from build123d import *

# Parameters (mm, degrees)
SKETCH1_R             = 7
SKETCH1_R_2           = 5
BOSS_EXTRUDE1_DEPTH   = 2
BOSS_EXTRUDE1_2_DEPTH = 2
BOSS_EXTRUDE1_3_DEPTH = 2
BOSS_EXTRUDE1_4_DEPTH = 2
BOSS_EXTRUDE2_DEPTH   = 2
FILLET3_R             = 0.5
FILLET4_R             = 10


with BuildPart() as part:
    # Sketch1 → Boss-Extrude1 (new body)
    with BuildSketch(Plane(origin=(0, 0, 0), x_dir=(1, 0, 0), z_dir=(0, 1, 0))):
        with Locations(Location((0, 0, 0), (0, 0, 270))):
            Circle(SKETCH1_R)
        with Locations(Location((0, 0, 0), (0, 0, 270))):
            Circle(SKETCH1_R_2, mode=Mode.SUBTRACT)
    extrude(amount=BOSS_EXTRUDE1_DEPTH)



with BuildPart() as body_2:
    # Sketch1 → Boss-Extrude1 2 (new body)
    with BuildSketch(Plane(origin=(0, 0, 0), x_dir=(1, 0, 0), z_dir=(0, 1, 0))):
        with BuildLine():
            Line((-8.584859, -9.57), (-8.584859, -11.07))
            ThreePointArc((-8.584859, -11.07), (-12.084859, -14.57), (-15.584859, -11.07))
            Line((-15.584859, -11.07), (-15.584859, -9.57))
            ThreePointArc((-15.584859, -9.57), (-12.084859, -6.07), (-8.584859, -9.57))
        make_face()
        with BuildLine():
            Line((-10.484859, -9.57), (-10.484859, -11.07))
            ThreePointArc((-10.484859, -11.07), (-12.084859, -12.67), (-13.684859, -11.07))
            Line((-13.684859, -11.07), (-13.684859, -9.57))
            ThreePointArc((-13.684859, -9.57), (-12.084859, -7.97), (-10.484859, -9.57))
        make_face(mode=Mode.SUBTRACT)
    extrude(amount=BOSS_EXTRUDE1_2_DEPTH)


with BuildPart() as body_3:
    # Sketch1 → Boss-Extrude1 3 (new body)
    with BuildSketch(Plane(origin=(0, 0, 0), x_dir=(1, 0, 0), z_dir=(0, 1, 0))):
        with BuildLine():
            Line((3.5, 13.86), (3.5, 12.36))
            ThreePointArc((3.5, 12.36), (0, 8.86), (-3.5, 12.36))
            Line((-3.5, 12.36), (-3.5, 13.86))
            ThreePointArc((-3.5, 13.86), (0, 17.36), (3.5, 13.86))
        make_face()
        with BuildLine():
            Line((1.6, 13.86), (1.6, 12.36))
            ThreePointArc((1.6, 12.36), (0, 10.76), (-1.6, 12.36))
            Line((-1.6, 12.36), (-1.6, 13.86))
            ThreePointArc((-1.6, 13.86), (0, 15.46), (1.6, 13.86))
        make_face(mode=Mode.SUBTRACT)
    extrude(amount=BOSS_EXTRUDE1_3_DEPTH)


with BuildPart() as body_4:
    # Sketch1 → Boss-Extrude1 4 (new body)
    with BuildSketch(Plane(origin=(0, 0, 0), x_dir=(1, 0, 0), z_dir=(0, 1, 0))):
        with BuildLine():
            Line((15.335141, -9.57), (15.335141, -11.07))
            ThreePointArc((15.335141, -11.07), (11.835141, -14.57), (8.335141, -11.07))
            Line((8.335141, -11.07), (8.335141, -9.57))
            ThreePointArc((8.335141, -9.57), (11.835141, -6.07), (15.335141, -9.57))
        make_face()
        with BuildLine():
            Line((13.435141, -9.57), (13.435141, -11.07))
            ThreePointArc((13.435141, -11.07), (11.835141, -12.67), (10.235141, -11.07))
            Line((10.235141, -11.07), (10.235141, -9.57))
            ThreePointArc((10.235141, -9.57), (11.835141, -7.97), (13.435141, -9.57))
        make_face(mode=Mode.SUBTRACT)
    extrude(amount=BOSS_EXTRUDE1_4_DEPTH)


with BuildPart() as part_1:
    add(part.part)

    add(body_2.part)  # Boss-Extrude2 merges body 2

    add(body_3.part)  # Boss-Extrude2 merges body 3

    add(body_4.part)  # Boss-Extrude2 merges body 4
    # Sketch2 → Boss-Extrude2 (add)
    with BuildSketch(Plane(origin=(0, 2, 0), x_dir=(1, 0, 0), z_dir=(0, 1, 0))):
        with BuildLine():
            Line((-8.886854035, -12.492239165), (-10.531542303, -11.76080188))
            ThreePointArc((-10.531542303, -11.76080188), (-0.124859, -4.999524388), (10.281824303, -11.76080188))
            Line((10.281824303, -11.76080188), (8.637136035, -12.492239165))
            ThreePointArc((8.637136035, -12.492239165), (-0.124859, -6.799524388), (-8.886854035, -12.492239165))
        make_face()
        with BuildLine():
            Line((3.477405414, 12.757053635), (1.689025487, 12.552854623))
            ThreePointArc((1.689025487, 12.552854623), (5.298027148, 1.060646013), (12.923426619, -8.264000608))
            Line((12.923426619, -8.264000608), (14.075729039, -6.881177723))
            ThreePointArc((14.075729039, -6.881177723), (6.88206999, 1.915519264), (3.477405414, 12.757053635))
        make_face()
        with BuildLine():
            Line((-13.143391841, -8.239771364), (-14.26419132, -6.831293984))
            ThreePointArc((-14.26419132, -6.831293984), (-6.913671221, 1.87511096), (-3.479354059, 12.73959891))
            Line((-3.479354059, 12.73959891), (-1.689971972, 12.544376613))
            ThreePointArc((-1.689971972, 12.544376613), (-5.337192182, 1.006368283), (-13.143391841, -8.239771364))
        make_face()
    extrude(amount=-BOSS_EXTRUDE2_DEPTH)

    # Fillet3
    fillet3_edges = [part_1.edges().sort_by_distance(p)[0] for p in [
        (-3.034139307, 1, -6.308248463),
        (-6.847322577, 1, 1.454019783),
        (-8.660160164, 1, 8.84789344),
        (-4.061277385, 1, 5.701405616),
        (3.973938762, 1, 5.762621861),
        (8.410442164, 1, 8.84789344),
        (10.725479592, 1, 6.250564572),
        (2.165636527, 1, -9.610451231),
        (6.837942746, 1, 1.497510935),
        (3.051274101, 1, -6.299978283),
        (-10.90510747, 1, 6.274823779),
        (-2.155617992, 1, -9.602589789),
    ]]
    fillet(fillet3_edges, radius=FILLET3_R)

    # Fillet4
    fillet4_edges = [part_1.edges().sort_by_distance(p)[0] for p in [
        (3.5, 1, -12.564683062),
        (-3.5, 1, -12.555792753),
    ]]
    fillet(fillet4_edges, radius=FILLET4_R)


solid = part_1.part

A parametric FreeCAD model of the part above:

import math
import FreeCAD as App
import Part
import Sketcher
Q = App.Units.Quantity


def edges_at(feature, points):
    """Names of the edges that pass closest to the given points."""
    edges = feature.Shape.Edges
    near = lambda p: min(range(len(edges)), key=lambda i: edges[i].distToShape(Part.Vertex(*p))[0])
    return sorted({f"Edge{near(p) + 1}" for p in points})

doc = App.newDocument("Part")
params = doc.addObject("Spreadsheet::Sheet", "Params")
for row, (alias, value) in enumerate([
    ("sketch1_diameter", "14 mm"),
    ("sketch1_diameter2", "10 mm"),
    ("pad1_length", "2 mm"),
    ("sketch2_radius", "3.5 mm"),
    ("sketch2_radius2", "1.6 mm"),
    ("sketch2_height", "1.5 mm"),
    ("pad2_length", "2 mm"),
    ("sketch3_radius", "3.5 mm"),
    ("sketch3_radius2", "1.6 mm"),
    ("sketch3_height", "1.5 mm"),
    ("pad3_length", "2 mm"),
    ("sketch4_radius", "3.5 mm"),
    ("sketch4_radius2", "1.6 mm"),
    ("sketch4_height", "1.5 mm"),
    ("pad4_length", "2 mm"),
    ("sketch5_length", "1.8 mm"),
    ("pad5_length", "2 mm"),
    ("fillet_radius", "0.5 mm"),
    ("fillet2_radius", "10 mm"),
], start=1):
    params.set(f"A{row}", alias)
    params.set(f"B{row}", "=" + value)
    params.setAlias(f"B{row}", alias)

body = doc.addObject("PartDesign::Body", "Body")

sketch1 = body.newObject("Sketcher::SketchObject", "Sketch")
sketch1.AttachmentSupport = (doc.getObject("XZ_Plane"), [""])
sketch1.MapMode = "FlatFace"
sketch1.addGeometry([
    Part.Circle(App.Vector(0, 0, 0), App.Vector(0, 0, 1), 7),
    Part.Circle(App.Vector(0, 0, 0), App.Vector(0, 0, 1), 5),
], False)
sketch1.addConstraint([
    Sketcher.Constraint("Coincident", 0, 3, -1, 1),
    Sketcher.Constraint("Coincident", 1, 3, -1, 1),
    Sketcher.Constraint("Diameter", 0, Q("14 mm")),
    Sketcher.Constraint("Diameter", 1, Q("10 mm")),
])
sketch1.setExpression("Constraints[2]", "Params.sketch1_diameter")
sketch1.setExpression("Constraints[3]", "Params.sketch1_diameter2")
pad1 = body.newObject("PartDesign::Pad", "Pad")
pad1.Profile = sketch1
pad1.setExpression("Length", "Params.pad1_length")
pad1.Reversed = True
body2 = doc.addObject("PartDesign::Body", "Body001")

sketch2 = body2.newObject("Sketcher::SketchObject", "Sketch001")
sketch2.AttachmentSupport = (doc.getObject("XZ_Plane001"), [""])
sketch2.MapMode = "FlatFace"
sketch2.addGeometry([
    Part.LineSegment(App.Vector(-8.6, 11.1, 0), App.Vector(-8.6, 9.6, 0)),
    Part.ArcOfCircle(Part.Circle(App.Vector(-12.1, 9.6, 0), App.Vector(0, 0, 1), 3.5), math.radians(180), math.radians(360)),
    Part.LineSegment(App.Vector(-15.6, 9.6, 0), App.Vector(-15.6, 11.1, 0)),
    Part.ArcOfCircle(Part.Circle(App.Vector(-12.1, 11.1, 0), App.Vector(0, 0, 1), 3.5), math.radians(0), math.radians(180)),
    Part.LineSegment(App.Vector(-10.5, 9.6, 0), App.Vector(-10.5, 11.1, 0)),
    Part.ArcOfCircle(Part.Circle(App.Vector(-12.1, 11.1, 0), App.Vector(0, 0, 1), 1.6), math.radians(0), math.radians(180)),
    Part.LineSegment(App.Vector(-13.7, 11.1, 0), App.Vector(-13.7, 9.6, 0)),
    Part.ArcOfCircle(Part.Circle(App.Vector(-12.1, 9.6, 0), App.Vector(0, 0, 1), 1.6), math.radians(180), math.radians(360)),
], False)
sketch2.addConstraint([
    Sketcher.Constraint("Tangent", 0, 2, 1, 2),
    Sketcher.Constraint("Tangent", 1, 1, 2, 1),
    Sketcher.Constraint("Tangent", 2, 2, 3, 2),
    Sketcher.Constraint("Tangent", 3, 1, 0, 1),
    Sketcher.Constraint("Tangent", 4, 2, 5, 1),
    Sketcher.Constraint("Tangent", 5, 2, 6, 1),
    Sketcher.Constraint("Tangent", 6, 2, 7, 1),
    Sketcher.Constraint("Tangent", 7, 2, 4, 1),
    Sketcher.Constraint("Vertical", 0),
    Sketcher.Constraint("Vertical", 2),
    Sketcher.Constraint("Vertical", 4),
    Sketcher.Constraint("Vertical", 6),
    Sketcher.Constraint("Coincident", 5, 3, 3, 3),
    Sketcher.Constraint("Horizontal", 7, 3, 0, 2),
    Sketcher.Constraint("Radius", 1, Q("3.5 mm")),
    Sketcher.Constraint("Radius", 5, Q("1.6 mm")),
    Sketcher.Constraint("DistanceY", 0, 2, 0, 1, Q("1.5 mm")),
    Sketcher.Constraint("DistanceY", -1, 1, 1, 3, Q("9.57 mm")),
    Sketcher.Constraint("DistanceX", 1, 3, -1, 1, Q("12.084859 mm")),
])
sketch2.setExpression("Constraints[14]", "Params.sketch2_radius")
sketch2.setExpression("Constraints[15]", "Params.sketch2_radius2")
sketch2.setExpression("Constraints[16]", "Params.sketch2_height")
pad2 = body2.newObject("PartDesign::Pad", "Pad001")
pad2.Profile = sketch2
pad2.setExpression("Length", "Params.pad2_length")
pad2.Reversed = True
body3 = doc.addObject("PartDesign::Body", "Body002")

sketch3 = body3.newObject("Sketcher::SketchObject", "Sketch002")
sketch3.AttachmentSupport = (doc.getObject("XZ_Plane002"), [""])
sketch3.MapMode = "FlatFace"
sketch3.addGeometry([
    Part.LineSegment(App.Vector(3.5, -12.4, 0), App.Vector(3.5, -13.9, 0)),
    Part.ArcOfCircle(Part.Circle(App.Vector(0, -13.9, 0), App.Vector(0, 0, 1), 3.5), math.radians(180), math.radians(360)),
    Part.LineSegment(App.Vector(-3.5, -13.9, 0), App.Vector(-3.5, -12.4, 0)),
    Part.ArcOfCircle(Part.Circle(App.Vector(0, -12.4, 0), App.Vector(0, 0, 1), 3.5), math.radians(0), math.radians(180)),
    Part.LineSegment(App.Vector(1.6, -13.9, 0), App.Vector(1.6, -12.4, 0)),
    Part.ArcOfCircle(Part.Circle(App.Vector(0, -12.4, 0), App.Vector(0, 0, 1), 1.6), math.radians(0), math.radians(180)),
    Part.LineSegment(App.Vector(-1.6, -12.4, 0), App.Vector(-1.6, -13.9, 0)),
    Part.ArcOfCircle(Part.Circle(App.Vector(0, -13.9, 0), App.Vector(0, 0, 1), 1.6), math.radians(180), math.radians(360)),
], False)
sketch3.addConstraint([
    Sketcher.Constraint("Tangent", 0, 2, 1, 2),
    Sketcher.Constraint("Tangent", 1, 1, 2, 1),
    Sketcher.Constraint("Tangent", 2, 2, 3, 2),
    Sketcher.Constraint("Tangent", 3, 1, 0, 1),
    Sketcher.Constraint("Tangent", 4, 2, 5, 1),
    Sketcher.Constraint("Tangent", 5, 2, 6, 1),
    Sketcher.Constraint("Tangent", 6, 2, 7, 1),
    Sketcher.Constraint("Tangent", 7, 2, 4, 1),
    Sketcher.Constraint("Vertical", 0),
    Sketcher.Constraint("Vertical", 2),
    Sketcher.Constraint("Vertical", 4),
    Sketcher.Constraint("Vertical", 6),
    Sketcher.Constraint("Coincident", 5, 3, 3, 3),
    Sketcher.Constraint("PointOnObject", 1, 3, -2),
    Sketcher.Constraint("Horizontal", 7, 3, 0, 2),
    Sketcher.Constraint("Radius", 1, Q("3.5 mm")),
    Sketcher.Constraint("Radius", 5, Q("1.6 mm")),
    Sketcher.Constraint("DistanceY", 0, 2, 0, 1, Q("1.5 mm")),
    Sketcher.Constraint("DistanceY", 1, 3, -1, 1, Q("13.86 mm")),
])
sketch3.setExpression("Constraints[15]", "Params.sketch3_radius")
sketch3.setExpression("Constraints[16]", "Params.sketch3_radius2")
sketch3.setExpression("Constraints[17]", "Params.sketch3_height")
pad3 = body3.newObject("PartDesign::Pad", "Pad002")
pad3.Profile = sketch3
pad3.setExpression("Length", "Params.pad3_length")
pad3.Reversed = True
body4 = doc.addObject("PartDesign::Body", "Body003")

sketch4 = body4.newObject("Sketcher::SketchObject", "Sketch003")
sketch4.AttachmentSupport = (doc.getObject("XZ_Plane003"), [""])
sketch4.MapMode = "FlatFace"
sketch4.addGeometry([
    Part.LineSegment(App.Vector(15.3, 11.1, 0), App.Vector(15.3, 9.6, 0)),
    Part.ArcOfCircle(Part.Circle(App.Vector(11.8, 9.6, 0), App.Vector(0, 0, 1), 3.5), math.radians(180), math.radians(360)),
    Part.LineSegment(App.Vector(8.3, 9.6, 0), App.Vector(8.3, 11.1, 0)),
    Part.ArcOfCircle(Part.Circle(App.Vector(11.8, 11.1, 0), App.Vector(0, 0, 1), 3.5), math.radians(0), math.radians(180)),
    Part.LineSegment(App.Vector(13.4, 9.6, 0), App.Vector(13.4, 11.1, 0)),
    Part.ArcOfCircle(Part.Circle(App.Vector(11.8, 11.1, 0), App.Vector(0, 0, 1), 1.6), math.radians(0), math.radians(180)),
    Part.LineSegment(App.Vector(10.2, 11.1, 0), App.Vector(10.2, 9.6, 0)),
    Part.ArcOfCircle(Part.Circle(App.Vector(11.8, 9.6, 0), App.Vector(0, 0, 1), 1.6), math.radians(180), math.radians(360)),
], False)
sketch4.addConstraint([
    Sketcher.Constraint("Tangent", 0, 2, 1, 2),
    Sketcher.Constraint("Tangent", 1, 1, 2, 1),
    Sketcher.Constraint("Tangent", 2, 2, 3, 2),
    Sketcher.Constraint("Tangent", 3, 1, 0, 1),
    Sketcher.Constraint("Tangent", 4, 2, 5, 1),
    Sketcher.Constraint("Tangent", 5, 2, 6, 1),
    Sketcher.Constraint("Tangent", 6, 2, 7, 1),
    Sketcher.Constraint("Tangent", 7, 2, 4, 1),
    Sketcher.Constraint("Vertical", 0),
    Sketcher.Constraint("Vertical", 2),
    Sketcher.Constraint("Vertical", 4),
    Sketcher.Constraint("Vertical", 6),
    Sketcher.Constraint("Coincident", 5, 3, 3, 3),
    Sketcher.Constraint("Horizontal", 7, 3, 0, 2),
    Sketcher.Constraint("Radius", 1, Q("3.5 mm")),
    Sketcher.Constraint("Radius", 5, Q("1.6 mm")),
    Sketcher.Constraint("DistanceY", 0, 2, 0, 1, Q("1.5 mm")),
    Sketcher.Constraint("DistanceY", -1, 1, 1, 3, Q("9.57 mm")),
    Sketcher.Constraint("DistanceX", -1, 1, 1, 3, Q("11.835141 mm")),
])
sketch4.setExpression("Constraints[14]", "Params.sketch4_radius")
sketch4.setExpression("Constraints[15]", "Params.sketch4_radius2")
sketch4.setExpression("Constraints[16]", "Params.sketch4_height")
pad4 = body4.newObject("PartDesign::Pad", "Pad003")
pad4.Profile = sketch4
pad4.setExpression("Length", "Params.pad4_length")
pad4.Reversed = True
body.AllowCompound = True
doc.recompute()

boolean = body.newObject("PartDesign::Boolean", "Boolean")
boolean.Type = "Fuse"
boolean.addObjects([body2])
doc.recompute()

boolean2 = body.newObject("PartDesign::Boolean", "Boolean001")
boolean2.Type = "Fuse"
boolean2.addObjects([body3])
doc.recompute()

boolean3 = body.newObject("PartDesign::Boolean", "Boolean002")
boolean3.Type = "Fuse"
boolean3.addObjects([body4])

sketch5 = body.newObject("Sketcher::SketchObject", "Sketch004")
sketch5.AttachmentSupport = (doc.getObject("XZ_Plane"), [""])
sketch5.MapMode = "FlatFace"
sketch5.AttachmentOffset = App.Placement(App.Vector(0, 0, -2), App.Rotation())
sketch5.addGeometry([
    Part.LineSegment(App.Vector(-10.5, 11.8, 0), App.Vector(-8.9, 12.5, 0)),
    Part.ArcOfCircle(Part.Circle(App.Vector(-0.1, 16.4, 0), App.Vector(0, 0, 1), 9.6), math.radians(-156), math.radians(-24)),
    Part.LineSegment(App.Vector(8.6, 12.5, 0), App.Vector(10.3, 11.8, 0)),
    Part.ArcOfCircle(Part.Circle(App.Vector(-0.1, 16.4, 0), App.Vector(0, 0, 1), 11.4), math.radians(-156), math.radians(-24)),
    Part.LineSegment(App.Vector(3.5, -12.8, 0), App.Vector(1.7, -12.6, 0)),
    Part.ArcOfCircle(Part.Circle(App.Vector(33.3, -16.2, 0), App.Vector(0, 0, 1), 31.8), math.radians(130), math.radians(173)),
    Part.LineSegment(App.Vector(12.9, 8.3, 0), App.Vector(14.1, 6.9, 0)),
    Part.ArcOfCircle(Part.Circle(App.Vector(33.3, -16.2, 0), App.Vector(0, 0, 1), 30), math.radians(130), math.radians(173)),
    Part.LineSegment(App.Vector(-14.3, 6.8, 0), App.Vector(-13.1, 8.2, 0)),
    Part.ArcOfCircle(Part.Circle(App.Vector(-32.3, -15.9, 0), App.Vector(0, 0, 1), 30.8), math.radians(6), math.radians(51)),
    Part.LineSegment(App.Vector(-1.7, -12.5, 0), App.Vector(-3.5, -12.7, 0)),
    Part.ArcOfCircle(Part.Circle(App.Vector(-32.3, -15.9, 0), App.Vector(0, 0, 1), 29), math.radians(6), math.radians(51)),
], False)
sketch5.addConstraint([
    Sketcher.Constraint("Coincident", 0, 2, 1, 1),
    Sketcher.Constraint("Coincident", 1, 2, 2, 1),
    Sketcher.Constraint("Coincident", 2, 2, 3, 2),
    Sketcher.Constraint("Coincident", 3, 1, 0, 1),
    Sketcher.Constraint("Coincident", 4, 2, 5, 2),
    Sketcher.Constraint("Coincident", 5, 1, 6, 1),
    Sketcher.Constraint("Coincident", 6, 2, 7, 1),
    Sketcher.Constraint("Coincident", 7, 2, 4, 1),
    Sketcher.Constraint("Coincident", 8, 2, 9, 2),
    Sketcher.Constraint("Coincident", 9, 1, 10, 1),
    Sketcher.Constraint("Coincident", 10, 2, 11, 1),
    Sketcher.Constraint("Coincident", 11, 2, 8, 1),
    Sketcher.Constraint("Coincident", 3, 3, 1, 3),
    Sketcher.Constraint("Coincident", 7, 3, 5, 3),
    Sketcher.Constraint("Coincident", 11, 3, 9, 3),
    Sketcher.Constraint("Horizontal", 0, 2, 1, 2),
    Sketcher.Constraint("Horizontal", 2, 2, 3, 1),
    Sketcher.Constraint("Equal", 2, 4),
    Sketcher.Constraint("Equal", 6, 8),
    Sketcher.Constraint("Distance", 0, Q("1.8 mm")),
    Sketcher.Constraint("Radius", 5, Q("31.791601 mm")),
    Sketcher.Constraint("Radius", 1, Q("9.589411 mm")),
    Sketcher.Constraint("DistanceY", -1, 1, 5, 1, Q("8.264001 mm")),
    Sketcher.Constraint("Radius", 9, Q("30.835615 mm")),
    Sketcher.Constraint("DistanceY", -1, 1, 2, 2, Q("11.760802 mm")),
    Sketcher.Constraint("DistanceY", 10, 2, -1, 1, Q("12.739599 mm")),
    Sketcher.Constraint("DistanceX", 4, 2, 2, 2, Q("8.592799 mm")),
    Sketcher.Constraint("DistanceY", 7, 2, 4, 2, Q("0.204199 mm")),
    Sketcher.Constraint("DistanceX", 9, 1, 6, 2, Q("15.765701 mm")),
    Sketcher.Constraint("DistanceX", 9, 1, 5, 1, Q("14.613399 mm")),
    Sketcher.Constraint("DistanceX", 11, 2, 8, 2, Q("1.120799 mm")),
    Sketcher.Constraint("DistanceX", 1, 3, -1, 1, Q("0.124859 mm")),
    Sketcher.Constraint("DistanceY", 9, 3, -1, 1, Q("15.88871 mm")),
    Sketcher.Constraint("DistanceY", -1, 1, 0, 2, Q("12.492239 mm")),
    Sketcher.Constraint("DistanceX", -1, 1, 6, 2, Q("14.075729 mm")),
    Sketcher.Constraint("DistanceX", 8, 2, -1, 1, Q("13.143392 mm")),
    Sketcher.Constraint("DistanceY", -1, 1, 8, 2, Q("8.239771 mm")),
    Sketcher.Constraint("DistanceX", 1, 3, 5, 3, Q("33.400251 mm")),
    Sketcher.Constraint("DistanceX", 11, 3, 0, 2, Q("23.456838 mm")),
])
sketch5.setExpression("Constraints[19]", "Params.sketch5_length")
pad5 = body.newObject("PartDesign::Pad", "Pad004")
pad5.Profile = sketch5
pad5.setExpression("Length", "Params.pad5_length")
doc.recompute()

fillet = body.newObject("PartDesign::Fillet", "Fillet")
fillet.Base = (pad5, edges_at(pad5, [
    (-3.034, 1, -6.308),
    (-6.847, 1, 1.454),
    (-8.66, 1, 8.848),
    (-4.061, 1, 5.701),
    (3.974, 1, 5.763),
    (8.41, 1, 8.848),
    (10.725, 1, 6.251),
    (2.166, 1, -9.61),
    (6.838, 1, 1.498),
    (3.051, 1, -6.3),
    (-10.905, 1, 6.275),
    (-2.156, 1, -9.603),
]))
fillet.setExpression("Radius", "Params.fillet_radius")
doc.recompute()

fillet2 = body.newObject("PartDesign::Fillet", "Fillet001")
fillet2.Base = (fillet, edges_at(fillet, [(3.5, 1, -12.565), (-3.5, 1, -12.556)]))
fillet2.setExpression("Radius", "Params.fillet2_radius")

doc.recompute()
